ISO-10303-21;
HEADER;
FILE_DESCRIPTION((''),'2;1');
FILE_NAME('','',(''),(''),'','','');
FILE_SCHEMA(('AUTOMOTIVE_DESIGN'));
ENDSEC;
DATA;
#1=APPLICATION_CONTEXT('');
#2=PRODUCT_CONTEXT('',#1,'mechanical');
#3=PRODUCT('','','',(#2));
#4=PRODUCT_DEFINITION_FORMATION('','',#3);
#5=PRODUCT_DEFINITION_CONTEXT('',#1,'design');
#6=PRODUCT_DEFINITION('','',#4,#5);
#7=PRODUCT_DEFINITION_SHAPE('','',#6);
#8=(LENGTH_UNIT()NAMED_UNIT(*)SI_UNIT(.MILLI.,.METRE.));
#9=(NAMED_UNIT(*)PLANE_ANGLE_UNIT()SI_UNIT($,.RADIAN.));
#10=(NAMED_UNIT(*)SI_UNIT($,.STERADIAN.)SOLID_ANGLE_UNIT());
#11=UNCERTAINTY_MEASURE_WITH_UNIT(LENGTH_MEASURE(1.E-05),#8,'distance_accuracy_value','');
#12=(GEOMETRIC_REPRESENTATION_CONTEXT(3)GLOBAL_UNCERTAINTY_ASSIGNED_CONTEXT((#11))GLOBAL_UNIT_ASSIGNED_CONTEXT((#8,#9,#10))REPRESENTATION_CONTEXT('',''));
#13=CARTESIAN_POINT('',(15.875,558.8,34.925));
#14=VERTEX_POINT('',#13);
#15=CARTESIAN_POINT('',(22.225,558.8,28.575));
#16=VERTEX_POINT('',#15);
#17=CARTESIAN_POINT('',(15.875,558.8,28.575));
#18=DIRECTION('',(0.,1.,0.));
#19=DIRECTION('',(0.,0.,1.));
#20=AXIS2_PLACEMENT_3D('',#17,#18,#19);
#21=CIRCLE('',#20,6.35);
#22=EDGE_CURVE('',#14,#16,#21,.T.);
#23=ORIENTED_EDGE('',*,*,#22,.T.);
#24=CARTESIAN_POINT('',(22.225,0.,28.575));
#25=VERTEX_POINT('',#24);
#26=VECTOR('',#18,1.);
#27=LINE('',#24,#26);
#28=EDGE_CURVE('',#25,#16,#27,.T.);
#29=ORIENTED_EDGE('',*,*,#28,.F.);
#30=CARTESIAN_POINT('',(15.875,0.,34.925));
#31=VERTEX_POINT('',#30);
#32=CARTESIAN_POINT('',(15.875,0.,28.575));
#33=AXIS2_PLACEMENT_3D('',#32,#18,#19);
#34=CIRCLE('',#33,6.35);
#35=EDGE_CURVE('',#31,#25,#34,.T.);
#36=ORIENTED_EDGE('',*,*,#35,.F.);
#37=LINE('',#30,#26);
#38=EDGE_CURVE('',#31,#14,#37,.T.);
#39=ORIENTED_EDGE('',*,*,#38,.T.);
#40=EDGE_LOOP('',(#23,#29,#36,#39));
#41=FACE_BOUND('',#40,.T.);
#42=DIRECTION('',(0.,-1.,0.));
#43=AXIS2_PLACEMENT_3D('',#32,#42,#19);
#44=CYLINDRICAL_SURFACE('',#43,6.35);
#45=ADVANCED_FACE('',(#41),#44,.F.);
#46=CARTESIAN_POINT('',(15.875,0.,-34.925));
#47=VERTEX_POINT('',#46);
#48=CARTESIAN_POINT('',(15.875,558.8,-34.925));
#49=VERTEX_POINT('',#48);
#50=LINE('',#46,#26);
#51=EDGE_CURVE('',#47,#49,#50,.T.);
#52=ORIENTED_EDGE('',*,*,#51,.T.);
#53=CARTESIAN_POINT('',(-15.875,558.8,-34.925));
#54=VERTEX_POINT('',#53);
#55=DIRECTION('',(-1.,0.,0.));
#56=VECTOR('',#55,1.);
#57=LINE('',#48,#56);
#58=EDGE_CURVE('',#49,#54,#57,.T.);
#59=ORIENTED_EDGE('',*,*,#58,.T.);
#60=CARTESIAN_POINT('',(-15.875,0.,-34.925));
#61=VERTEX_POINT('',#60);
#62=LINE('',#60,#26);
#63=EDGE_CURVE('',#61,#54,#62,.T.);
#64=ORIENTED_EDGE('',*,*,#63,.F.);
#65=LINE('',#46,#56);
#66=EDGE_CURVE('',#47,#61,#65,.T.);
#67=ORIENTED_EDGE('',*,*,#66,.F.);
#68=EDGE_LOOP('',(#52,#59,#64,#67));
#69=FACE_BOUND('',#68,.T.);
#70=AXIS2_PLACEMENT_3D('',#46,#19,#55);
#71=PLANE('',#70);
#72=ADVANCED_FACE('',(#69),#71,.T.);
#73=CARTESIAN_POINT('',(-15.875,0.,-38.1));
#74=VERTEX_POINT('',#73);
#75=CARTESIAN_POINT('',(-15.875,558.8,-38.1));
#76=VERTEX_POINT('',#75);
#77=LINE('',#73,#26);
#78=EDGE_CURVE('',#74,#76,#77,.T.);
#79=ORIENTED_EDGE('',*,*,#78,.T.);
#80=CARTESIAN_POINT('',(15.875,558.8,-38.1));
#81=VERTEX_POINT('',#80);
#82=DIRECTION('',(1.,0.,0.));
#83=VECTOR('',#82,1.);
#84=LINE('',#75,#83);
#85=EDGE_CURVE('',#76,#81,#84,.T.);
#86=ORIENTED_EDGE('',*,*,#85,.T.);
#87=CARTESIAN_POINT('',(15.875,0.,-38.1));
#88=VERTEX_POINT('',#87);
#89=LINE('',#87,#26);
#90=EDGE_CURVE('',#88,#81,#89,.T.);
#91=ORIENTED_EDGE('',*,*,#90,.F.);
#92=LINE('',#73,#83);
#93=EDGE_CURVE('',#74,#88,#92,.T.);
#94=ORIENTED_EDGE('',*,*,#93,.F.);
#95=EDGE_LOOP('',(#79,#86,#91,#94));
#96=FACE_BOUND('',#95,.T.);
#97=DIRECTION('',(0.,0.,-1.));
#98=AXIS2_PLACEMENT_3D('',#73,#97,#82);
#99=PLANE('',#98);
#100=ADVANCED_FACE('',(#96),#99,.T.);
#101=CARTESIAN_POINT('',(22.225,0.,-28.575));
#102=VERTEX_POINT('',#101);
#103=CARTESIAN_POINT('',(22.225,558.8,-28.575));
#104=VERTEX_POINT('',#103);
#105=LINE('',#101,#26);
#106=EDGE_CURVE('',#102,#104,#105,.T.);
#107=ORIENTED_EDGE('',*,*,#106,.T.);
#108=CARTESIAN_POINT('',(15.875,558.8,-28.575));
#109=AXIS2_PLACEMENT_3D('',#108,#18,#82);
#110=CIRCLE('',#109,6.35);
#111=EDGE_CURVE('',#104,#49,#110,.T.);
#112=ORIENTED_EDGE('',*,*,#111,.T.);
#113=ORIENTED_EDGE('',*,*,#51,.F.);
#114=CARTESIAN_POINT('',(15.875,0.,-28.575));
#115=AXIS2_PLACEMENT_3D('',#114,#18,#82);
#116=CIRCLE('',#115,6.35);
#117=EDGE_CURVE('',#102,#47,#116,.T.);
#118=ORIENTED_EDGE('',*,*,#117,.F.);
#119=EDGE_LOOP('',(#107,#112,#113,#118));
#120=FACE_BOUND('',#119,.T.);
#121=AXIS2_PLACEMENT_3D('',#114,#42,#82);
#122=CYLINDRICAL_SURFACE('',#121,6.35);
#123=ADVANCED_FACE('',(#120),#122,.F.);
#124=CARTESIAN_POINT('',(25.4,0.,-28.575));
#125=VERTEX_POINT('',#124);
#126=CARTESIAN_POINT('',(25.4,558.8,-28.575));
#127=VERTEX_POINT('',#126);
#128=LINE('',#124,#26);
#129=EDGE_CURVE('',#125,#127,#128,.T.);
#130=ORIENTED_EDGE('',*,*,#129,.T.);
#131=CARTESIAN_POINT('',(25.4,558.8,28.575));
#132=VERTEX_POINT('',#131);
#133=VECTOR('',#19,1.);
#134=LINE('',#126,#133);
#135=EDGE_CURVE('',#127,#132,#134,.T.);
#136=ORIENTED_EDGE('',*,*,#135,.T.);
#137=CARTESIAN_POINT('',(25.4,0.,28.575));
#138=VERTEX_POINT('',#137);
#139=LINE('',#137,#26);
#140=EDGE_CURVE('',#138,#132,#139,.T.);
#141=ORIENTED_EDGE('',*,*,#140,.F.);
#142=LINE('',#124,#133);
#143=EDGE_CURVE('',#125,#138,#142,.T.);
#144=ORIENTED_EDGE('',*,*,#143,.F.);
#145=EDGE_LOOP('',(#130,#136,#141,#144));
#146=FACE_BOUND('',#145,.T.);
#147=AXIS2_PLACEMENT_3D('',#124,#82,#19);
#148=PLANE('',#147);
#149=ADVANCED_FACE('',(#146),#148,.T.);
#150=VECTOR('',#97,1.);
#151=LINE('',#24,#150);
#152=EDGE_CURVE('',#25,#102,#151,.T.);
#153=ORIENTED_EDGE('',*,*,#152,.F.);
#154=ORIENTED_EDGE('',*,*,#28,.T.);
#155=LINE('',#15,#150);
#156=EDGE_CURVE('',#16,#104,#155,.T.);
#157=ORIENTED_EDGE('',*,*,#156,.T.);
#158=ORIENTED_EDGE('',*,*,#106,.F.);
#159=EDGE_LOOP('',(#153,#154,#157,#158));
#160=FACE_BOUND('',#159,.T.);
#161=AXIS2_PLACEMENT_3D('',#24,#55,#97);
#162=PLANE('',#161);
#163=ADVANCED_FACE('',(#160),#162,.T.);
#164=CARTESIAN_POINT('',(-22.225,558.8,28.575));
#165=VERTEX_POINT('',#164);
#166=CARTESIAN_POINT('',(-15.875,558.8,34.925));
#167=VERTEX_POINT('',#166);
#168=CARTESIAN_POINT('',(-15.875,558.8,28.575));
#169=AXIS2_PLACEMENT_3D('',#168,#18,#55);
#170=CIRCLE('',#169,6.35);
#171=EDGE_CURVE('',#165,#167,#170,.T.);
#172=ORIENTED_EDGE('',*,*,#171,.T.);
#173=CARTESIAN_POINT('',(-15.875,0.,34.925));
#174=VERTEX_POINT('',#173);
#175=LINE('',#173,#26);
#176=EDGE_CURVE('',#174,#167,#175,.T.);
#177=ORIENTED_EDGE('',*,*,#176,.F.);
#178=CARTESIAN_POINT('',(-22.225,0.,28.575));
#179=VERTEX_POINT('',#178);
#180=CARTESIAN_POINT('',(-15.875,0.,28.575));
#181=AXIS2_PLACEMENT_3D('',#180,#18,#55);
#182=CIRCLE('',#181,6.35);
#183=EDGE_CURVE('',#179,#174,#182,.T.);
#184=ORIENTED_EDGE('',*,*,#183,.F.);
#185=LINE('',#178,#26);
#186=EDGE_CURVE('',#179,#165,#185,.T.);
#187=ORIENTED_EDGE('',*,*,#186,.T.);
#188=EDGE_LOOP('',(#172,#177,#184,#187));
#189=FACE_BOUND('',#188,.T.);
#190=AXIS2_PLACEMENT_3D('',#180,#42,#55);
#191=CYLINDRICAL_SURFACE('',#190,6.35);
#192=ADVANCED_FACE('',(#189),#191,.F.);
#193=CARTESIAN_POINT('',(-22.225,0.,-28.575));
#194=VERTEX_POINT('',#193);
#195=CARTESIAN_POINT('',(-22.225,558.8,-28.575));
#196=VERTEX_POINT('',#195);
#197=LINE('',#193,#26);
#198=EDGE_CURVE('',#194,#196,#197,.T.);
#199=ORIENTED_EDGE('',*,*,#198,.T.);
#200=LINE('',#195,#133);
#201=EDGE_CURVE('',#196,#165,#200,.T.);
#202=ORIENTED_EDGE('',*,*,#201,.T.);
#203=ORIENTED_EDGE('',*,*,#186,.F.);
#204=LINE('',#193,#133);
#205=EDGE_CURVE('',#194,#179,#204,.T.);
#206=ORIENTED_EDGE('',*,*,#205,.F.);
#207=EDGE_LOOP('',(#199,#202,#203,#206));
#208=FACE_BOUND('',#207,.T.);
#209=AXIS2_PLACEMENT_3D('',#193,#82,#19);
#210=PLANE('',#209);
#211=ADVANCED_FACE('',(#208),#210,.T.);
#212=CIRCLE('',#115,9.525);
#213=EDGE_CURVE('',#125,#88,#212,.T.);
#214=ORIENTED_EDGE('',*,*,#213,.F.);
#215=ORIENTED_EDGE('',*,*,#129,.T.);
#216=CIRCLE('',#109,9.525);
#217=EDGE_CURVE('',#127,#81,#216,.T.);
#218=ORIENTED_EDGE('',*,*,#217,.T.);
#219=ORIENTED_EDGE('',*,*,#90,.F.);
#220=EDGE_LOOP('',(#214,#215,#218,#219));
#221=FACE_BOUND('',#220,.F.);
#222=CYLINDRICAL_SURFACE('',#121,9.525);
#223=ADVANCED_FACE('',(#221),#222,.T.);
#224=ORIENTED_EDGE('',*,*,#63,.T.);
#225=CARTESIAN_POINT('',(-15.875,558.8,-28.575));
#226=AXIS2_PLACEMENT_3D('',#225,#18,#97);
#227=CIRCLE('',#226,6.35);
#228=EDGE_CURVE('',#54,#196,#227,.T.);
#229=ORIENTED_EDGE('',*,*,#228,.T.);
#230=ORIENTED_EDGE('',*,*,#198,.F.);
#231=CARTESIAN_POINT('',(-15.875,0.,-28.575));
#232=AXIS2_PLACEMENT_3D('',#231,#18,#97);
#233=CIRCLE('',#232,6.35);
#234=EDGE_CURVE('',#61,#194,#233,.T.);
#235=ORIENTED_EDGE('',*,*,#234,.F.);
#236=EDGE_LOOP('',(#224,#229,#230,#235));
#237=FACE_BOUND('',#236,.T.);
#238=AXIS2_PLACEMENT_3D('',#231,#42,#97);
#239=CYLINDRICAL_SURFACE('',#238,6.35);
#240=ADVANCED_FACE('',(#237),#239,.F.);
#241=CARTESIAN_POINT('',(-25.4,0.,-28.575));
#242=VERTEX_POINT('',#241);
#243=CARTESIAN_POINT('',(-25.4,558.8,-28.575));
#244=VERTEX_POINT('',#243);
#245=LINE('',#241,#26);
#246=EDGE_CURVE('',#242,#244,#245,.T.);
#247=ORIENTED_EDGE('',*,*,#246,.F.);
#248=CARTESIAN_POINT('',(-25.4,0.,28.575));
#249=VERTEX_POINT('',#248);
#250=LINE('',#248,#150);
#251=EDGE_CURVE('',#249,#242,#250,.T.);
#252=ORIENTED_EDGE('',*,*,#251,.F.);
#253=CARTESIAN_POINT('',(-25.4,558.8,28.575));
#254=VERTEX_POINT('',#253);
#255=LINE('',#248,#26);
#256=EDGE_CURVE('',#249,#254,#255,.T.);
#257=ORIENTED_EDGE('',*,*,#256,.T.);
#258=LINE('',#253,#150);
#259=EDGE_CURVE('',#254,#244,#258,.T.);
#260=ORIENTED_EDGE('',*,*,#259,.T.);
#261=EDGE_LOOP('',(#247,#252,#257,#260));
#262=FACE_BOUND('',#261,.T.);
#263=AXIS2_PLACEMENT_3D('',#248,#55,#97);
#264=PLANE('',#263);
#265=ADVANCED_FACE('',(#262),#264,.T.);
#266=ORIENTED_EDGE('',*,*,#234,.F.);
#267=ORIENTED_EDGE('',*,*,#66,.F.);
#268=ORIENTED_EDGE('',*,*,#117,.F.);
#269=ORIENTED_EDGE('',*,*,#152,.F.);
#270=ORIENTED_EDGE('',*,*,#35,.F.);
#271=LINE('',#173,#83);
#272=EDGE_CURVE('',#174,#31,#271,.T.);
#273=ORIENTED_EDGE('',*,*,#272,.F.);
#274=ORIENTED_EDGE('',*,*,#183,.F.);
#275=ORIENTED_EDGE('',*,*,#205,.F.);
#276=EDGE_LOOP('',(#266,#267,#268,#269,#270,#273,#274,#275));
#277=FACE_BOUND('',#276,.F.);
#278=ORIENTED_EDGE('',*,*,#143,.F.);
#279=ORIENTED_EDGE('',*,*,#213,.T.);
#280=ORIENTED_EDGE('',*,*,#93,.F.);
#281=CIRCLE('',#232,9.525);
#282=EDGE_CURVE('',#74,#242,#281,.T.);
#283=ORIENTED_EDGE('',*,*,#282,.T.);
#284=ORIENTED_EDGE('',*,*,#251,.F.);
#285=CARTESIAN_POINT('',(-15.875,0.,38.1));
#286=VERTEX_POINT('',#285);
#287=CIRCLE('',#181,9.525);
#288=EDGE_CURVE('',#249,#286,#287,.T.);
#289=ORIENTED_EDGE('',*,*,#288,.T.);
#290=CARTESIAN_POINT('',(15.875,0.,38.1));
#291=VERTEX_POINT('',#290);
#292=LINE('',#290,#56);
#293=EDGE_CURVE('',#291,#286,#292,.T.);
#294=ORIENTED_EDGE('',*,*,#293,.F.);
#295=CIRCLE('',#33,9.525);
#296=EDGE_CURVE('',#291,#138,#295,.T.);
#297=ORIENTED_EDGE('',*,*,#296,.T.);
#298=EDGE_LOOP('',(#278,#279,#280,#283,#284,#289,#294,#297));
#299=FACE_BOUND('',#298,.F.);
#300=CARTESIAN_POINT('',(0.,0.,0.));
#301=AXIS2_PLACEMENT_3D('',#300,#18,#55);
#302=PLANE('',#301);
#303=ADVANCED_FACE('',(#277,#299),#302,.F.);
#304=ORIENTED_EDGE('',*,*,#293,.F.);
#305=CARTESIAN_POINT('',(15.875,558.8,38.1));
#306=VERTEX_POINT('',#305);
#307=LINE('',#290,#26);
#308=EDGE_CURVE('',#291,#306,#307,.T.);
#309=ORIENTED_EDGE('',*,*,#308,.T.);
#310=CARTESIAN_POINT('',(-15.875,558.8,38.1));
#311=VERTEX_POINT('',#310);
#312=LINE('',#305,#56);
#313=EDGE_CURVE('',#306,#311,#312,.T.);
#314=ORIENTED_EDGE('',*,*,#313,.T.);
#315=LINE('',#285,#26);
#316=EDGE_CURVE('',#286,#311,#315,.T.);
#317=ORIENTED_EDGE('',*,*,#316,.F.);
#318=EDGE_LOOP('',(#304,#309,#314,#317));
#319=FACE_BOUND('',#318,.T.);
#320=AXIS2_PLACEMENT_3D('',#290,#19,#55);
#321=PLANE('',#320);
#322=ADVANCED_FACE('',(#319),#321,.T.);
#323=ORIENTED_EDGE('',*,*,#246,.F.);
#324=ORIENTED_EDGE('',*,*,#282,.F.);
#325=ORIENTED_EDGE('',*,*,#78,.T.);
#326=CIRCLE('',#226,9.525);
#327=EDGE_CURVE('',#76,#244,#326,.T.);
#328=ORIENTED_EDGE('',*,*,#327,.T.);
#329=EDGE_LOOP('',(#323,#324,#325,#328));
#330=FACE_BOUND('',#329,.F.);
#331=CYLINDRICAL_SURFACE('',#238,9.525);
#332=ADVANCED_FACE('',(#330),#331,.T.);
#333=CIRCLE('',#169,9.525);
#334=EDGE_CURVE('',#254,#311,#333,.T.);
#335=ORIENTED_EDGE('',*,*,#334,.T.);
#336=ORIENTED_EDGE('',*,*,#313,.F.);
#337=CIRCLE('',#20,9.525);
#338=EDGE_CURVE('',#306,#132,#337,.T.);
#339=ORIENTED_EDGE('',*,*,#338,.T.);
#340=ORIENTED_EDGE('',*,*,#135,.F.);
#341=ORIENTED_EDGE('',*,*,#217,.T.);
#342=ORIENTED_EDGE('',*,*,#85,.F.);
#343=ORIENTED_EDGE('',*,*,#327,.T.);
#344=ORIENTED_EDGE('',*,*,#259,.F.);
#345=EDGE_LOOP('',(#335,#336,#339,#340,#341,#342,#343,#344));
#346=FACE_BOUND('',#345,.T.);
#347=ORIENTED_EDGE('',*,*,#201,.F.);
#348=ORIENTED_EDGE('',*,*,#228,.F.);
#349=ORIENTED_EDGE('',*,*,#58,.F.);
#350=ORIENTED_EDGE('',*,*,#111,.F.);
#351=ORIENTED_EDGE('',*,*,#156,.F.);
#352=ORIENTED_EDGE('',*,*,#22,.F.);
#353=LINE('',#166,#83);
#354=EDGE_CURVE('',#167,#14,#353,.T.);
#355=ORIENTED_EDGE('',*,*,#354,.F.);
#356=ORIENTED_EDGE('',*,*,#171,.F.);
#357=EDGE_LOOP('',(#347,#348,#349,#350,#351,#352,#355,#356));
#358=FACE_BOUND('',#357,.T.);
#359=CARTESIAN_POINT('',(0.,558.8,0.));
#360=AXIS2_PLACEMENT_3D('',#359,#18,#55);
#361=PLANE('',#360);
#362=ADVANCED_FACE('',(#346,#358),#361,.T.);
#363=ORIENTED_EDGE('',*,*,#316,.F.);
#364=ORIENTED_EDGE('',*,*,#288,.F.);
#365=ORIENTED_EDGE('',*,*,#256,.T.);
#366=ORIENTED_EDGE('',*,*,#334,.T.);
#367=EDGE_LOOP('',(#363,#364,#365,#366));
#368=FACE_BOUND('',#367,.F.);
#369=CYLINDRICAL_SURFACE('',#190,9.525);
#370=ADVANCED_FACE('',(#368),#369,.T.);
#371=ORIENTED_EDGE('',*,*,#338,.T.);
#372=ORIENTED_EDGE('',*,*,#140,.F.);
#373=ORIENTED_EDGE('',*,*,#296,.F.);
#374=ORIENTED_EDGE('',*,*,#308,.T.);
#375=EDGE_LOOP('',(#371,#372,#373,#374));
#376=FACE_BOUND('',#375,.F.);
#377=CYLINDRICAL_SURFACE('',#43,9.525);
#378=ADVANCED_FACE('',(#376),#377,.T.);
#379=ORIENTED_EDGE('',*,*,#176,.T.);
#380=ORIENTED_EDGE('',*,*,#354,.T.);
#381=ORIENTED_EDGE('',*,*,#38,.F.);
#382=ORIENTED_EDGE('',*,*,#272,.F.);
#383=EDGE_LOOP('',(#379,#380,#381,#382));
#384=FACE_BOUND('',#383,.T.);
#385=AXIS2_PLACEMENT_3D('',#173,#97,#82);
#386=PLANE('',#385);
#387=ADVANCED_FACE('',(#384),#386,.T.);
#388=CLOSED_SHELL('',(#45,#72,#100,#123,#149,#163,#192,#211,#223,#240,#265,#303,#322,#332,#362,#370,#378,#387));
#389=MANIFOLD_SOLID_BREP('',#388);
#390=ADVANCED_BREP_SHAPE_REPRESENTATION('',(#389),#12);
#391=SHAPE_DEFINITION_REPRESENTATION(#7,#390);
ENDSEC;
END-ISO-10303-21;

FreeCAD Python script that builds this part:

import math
import FreeCAD as App
import Part
import Sketcher

V = App.Vector
Q = App.Units.Quantity

doc = App.newDocument("Part")
body = doc.addObject("PartDesign::Body", "Body")

# Sketch on XZ plane
sketch1 = body.newObject("Sketcher::SketchObject", "Sketch")
sketch1.AttachmentSupport = (doc.getObject("XZ_Plane"), [""])
sketch1.MapMode = "FlatFace"
sketch1.addGeometry([
    Part.LineSegment(V(-16, 38, 0), V(16, 38, 0)),  # 0
    Part.ArcOfCircle(Part.Circle(V(16, 29, 0), V(0, 0, 1), 10), math.radians(0), math.radians(90)),  # 1
    Part.LineSegment(V(25, 29, 0), V(25, -29, 0)),  # 2
    Part.ArcOfCircle(Part.Circle(V(16, -29, 0), V(0, 0, 1), 10), math.radians(-90), math.radians(0)),  # 3
    Part.LineSegment(V(16, -38, 0), V(-16, -38, 0)),  # 4
    Part.ArcOfCircle(Part.Circle(V(-16, -29, 0), V(0, 0, 1), 10), math.radians(180), math.radians(270)),  # 5
    Part.LineSegment(V(-25, -29, 0), V(-25, 29, 0)),  # 6
    Part.ArcOfCircle(Part.Circle(V(-16, 29, 0), V(0, 0, 1), 10), math.radians(90), math.radians(180)),  # 7
    Part.LineSegment(V(-22, 29, 0), V(-22, -29, 0)),  # 8
    Part.ArcOfCircle(Part.Circle(V(-16, -29, 0), V(0, 0, 1), 6), math.radians(180), math.radians(270)),  # 9
    Part.LineSegment(V(-16, -35, 0), V(16, -35, 0)),  # 10
    Part.ArcOfCircle(Part.Circle(V(16, -29, 0), V(0, 0, 1), 6), math.radians(-90), math.radians(0)),  # 11
    Part.LineSegment(V(22, -29, 0), V(22, 29, 0)),  # 12
    Part.ArcOfCircle(Part.Circle(V(16, 29, 0), V(0, 0, 1), 6), math.radians(0), math.radians(90)),  # 13
    Part.LineSegment(V(16, 35, 0), V(-16, 35, 0)),  # 14
    Part.ArcOfCircle(Part.Circle(V(-16, 29, 0), V(0, 0, 1), 6), math.radians(90), math.radians(180)),  # 15
], False)
sketch1.addConstraint([
    Sketcher.Constraint("Tangent", 0, 2, 1, 2),
    Sketcher.Constraint("Tangent", 1, 1, 2, 1),
    Sketcher.Constraint("Tangent", 2, 2, 3, 2),
    Sketcher.Constraint("Tangent", 3, 1, 4, 1),
    Sketcher.Constraint("Tangent", 4, 2, 5, 2),
    Sketcher.Constraint("Tangent", 5, 1, 6, 1),
    Sketcher.Constraint("Tangent", 6, 2, 7, 2),
    Sketcher.Constraint("Tangent", 7, 1, 0, 1),
    Sketcher.Constraint("Tangent", 8, 2, 9, 1),
    Sketcher.Constraint("Tangent", 9, 2, 10, 1),
    Sketcher.Constraint("Tangent", 10, 2, 11, 1),
    Sketcher.Constraint("Tangent", 11, 2, 12, 1),
    Sketcher.Constraint("Tangent", 12, 2, 13, 1),
    Sketcher.Constraint("Tangent", 13, 2, 14, 1),
    Sketcher.Constraint("Tangent", 14, 2, 15, 1),
    Sketcher.Constraint("Tangent", 15, 2, 8, 1),
    Sketcher.Constraint("Horizontal", 0),
    Sketcher.Constraint("Vertical", 2),
    Sketcher.Constraint("Horizontal", 4),
    Sketcher.Constraint("Vertical", 6),
    Sketcher.Constraint("Vertical", 8),
    Sketcher.Constraint("Horizontal", 10),
    Sketcher.Constraint("Vertical", 12),
    Sketcher.Constraint("Horizontal", 14),
    Sketcher.Constraint("Coincident", 9, 3, 5, 3),
    Sketcher.Constraint("Coincident", 11, 3, 3, 3),
    Sketcher.Constraint("Coincident", 13, 3, 1, 3),
    Sketcher.Constraint("Equal", 1, 3),
    Sketcher.Constraint("Equal", 3, 5),
    Sketcher.Constraint("Equal", 5, 7),
    Sketcher.Constraint("Equal", 13, 15),
    Sketcher.Constraint("Symmetric", 1, 3, 5, 3, -1, 1),
    Sketcher.Constraint("Radius", 1, Q("0.375 in")),
    Sketcher.Constraint("Radius", 9, Q("0.25 in")),
    Sketcher.Constraint("DistanceX", -1, 1, 1, 1, Q("1 in")),
    Sketcher.Constraint("DistanceY", 2, 2, 2, 1, Q("2.25 in")),
])
pad1 = body.newObject("PartDesign::Pad", "Pad")
pad1.Profile = sketch1
pad1.Length = Q("22 in")
pad1.Reversed = True

doc.recompute()
